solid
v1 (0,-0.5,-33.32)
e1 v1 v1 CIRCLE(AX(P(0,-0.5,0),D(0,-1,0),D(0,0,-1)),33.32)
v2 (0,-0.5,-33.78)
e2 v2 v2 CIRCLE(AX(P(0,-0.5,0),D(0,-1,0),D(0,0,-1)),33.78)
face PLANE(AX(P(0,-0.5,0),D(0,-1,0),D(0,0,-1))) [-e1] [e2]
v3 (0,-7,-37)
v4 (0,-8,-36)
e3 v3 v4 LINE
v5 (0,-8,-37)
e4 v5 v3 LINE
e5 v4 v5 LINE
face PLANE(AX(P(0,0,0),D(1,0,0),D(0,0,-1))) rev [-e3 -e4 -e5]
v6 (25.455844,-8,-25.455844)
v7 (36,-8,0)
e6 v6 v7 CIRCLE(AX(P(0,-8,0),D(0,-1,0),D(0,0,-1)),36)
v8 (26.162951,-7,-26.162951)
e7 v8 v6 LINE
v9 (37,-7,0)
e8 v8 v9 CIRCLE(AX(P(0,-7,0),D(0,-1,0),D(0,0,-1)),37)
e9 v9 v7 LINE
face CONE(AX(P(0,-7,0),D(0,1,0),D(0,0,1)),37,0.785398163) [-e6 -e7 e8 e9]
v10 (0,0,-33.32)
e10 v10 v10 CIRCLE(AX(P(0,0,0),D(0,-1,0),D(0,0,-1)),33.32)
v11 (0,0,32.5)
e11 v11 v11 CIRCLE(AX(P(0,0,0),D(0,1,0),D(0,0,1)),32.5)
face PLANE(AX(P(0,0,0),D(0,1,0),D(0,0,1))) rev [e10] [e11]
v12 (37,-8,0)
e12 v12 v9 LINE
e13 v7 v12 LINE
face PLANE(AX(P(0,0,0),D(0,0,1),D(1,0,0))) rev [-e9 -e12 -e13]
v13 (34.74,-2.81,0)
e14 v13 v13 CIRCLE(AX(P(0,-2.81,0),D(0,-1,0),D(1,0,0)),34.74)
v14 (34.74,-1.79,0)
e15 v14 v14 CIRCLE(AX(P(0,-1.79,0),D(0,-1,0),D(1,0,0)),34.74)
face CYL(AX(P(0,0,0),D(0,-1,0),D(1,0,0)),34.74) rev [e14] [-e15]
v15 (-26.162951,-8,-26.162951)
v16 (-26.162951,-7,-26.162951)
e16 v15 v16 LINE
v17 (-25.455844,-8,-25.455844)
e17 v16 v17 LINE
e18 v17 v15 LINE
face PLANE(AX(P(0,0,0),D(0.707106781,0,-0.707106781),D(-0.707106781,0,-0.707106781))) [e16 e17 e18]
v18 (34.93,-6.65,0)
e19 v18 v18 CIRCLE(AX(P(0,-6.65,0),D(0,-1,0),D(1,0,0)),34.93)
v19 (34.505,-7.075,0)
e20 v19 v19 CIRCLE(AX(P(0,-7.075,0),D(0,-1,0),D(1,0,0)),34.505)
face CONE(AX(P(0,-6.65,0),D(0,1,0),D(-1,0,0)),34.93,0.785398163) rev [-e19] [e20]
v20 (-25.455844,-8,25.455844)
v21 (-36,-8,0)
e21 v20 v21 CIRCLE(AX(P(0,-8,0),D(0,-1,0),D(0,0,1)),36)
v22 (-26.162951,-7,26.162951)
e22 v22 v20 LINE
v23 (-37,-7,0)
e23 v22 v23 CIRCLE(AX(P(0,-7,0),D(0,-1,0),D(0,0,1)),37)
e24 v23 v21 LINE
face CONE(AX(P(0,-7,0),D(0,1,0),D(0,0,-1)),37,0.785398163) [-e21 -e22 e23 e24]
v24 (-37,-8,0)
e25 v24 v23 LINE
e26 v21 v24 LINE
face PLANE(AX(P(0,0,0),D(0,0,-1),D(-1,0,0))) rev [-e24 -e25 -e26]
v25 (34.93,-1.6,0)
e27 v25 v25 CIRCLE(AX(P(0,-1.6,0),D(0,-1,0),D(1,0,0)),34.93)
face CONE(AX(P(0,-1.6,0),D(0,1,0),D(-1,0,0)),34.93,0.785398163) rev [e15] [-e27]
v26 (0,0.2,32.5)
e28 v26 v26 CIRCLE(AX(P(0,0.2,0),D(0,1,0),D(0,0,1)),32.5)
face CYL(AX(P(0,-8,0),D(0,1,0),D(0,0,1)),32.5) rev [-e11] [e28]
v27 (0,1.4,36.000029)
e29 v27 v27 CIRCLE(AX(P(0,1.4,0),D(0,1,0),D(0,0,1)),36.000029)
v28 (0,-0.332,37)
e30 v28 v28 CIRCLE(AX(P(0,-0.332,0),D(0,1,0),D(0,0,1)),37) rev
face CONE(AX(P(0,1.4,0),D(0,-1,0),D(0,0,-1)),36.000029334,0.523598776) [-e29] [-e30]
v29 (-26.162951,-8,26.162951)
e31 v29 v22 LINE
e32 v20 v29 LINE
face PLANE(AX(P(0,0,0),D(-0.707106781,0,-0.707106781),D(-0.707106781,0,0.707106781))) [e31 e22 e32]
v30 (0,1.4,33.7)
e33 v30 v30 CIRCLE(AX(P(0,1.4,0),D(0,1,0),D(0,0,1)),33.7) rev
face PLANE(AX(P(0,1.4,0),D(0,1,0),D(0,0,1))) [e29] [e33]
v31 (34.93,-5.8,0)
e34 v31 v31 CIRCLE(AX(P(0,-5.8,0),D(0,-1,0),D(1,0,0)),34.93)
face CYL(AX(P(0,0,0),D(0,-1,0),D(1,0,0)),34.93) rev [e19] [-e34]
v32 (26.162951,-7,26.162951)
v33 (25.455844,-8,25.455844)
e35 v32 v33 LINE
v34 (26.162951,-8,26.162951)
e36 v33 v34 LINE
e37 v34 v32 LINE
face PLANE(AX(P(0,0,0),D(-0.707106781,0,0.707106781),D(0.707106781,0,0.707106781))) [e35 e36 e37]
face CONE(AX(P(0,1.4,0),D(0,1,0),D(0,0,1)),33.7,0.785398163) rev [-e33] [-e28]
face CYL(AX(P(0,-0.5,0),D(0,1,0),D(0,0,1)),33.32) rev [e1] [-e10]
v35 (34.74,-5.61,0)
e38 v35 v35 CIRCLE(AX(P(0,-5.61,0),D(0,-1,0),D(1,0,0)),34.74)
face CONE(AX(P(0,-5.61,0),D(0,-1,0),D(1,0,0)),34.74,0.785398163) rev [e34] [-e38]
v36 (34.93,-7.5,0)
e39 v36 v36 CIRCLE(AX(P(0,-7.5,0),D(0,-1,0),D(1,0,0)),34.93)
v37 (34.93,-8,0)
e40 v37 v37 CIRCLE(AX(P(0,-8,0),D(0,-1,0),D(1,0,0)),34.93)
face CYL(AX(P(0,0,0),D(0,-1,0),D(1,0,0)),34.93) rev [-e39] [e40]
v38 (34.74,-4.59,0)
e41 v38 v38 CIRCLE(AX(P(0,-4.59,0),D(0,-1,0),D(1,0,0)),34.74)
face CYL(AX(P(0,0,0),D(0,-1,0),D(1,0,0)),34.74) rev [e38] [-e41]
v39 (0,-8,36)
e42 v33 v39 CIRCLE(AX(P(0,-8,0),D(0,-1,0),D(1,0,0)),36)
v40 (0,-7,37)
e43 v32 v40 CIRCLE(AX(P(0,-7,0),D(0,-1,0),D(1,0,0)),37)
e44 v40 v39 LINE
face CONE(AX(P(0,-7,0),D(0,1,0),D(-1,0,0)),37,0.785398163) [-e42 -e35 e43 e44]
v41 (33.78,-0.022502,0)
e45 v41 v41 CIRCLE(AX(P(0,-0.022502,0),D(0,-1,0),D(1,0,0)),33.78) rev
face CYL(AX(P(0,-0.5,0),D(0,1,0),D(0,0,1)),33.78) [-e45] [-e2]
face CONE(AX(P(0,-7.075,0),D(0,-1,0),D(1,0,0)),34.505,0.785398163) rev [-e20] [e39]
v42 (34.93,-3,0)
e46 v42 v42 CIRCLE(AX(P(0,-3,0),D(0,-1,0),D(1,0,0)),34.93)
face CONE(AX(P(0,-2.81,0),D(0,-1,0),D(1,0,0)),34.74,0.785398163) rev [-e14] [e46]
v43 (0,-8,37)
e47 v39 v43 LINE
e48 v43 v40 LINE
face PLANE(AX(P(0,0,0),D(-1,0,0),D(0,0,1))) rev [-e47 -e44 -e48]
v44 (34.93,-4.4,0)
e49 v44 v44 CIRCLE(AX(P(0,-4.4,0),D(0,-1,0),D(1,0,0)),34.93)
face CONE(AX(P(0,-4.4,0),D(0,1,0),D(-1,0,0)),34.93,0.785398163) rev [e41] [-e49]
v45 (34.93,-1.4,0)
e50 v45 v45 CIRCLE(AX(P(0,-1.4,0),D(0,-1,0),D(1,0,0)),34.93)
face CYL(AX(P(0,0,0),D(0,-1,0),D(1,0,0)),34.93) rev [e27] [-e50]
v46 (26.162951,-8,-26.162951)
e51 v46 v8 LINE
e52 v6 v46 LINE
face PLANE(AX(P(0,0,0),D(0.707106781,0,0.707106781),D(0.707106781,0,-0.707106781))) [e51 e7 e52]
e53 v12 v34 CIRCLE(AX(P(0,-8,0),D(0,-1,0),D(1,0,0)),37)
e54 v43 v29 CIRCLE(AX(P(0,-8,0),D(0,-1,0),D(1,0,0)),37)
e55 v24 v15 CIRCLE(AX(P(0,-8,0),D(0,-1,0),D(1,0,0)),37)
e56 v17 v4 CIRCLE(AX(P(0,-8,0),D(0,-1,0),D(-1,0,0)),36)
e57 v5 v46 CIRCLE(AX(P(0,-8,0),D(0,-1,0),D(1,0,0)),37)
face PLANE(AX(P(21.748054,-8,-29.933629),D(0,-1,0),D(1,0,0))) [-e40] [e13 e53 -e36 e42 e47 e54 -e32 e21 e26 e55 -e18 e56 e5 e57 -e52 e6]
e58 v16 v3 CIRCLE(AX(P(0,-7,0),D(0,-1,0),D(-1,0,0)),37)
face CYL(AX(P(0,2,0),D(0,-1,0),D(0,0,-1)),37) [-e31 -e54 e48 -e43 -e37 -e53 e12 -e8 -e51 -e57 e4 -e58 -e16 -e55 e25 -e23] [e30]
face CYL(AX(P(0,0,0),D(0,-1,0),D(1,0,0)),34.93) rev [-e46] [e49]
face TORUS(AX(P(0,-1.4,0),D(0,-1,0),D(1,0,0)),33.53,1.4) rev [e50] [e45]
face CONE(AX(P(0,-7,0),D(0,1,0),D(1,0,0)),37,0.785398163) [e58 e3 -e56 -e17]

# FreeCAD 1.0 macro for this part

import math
import FreeCAD as App
import Part
import Sketcher

V = App.Vector
Q = App.Units.Quantity


def edges_at(feature, points):
    """Names of the edges that pass closest to the given points."""
    edges = feature.Shape.Edges
    near = lambda p: min(range(len(edges)), key=lambda i: edges[i].distToShape(Part.Vertex(*p))[0])
    return sorted({f"Edge{near(p) + 1}" for p in points})

doc = App.newDocument("Part")
body = doc.addObject("PartDesign::Body", "Body")

sketch1 = body.newObject("Sketcher::SketchObject", "Sketch")
sketch1.AttachmentSupport = (doc.getObject("XZ_Plane"), [""])
sketch1.MapMode = "FlatFace"
sketch1.addGeometry(Part.Circle(V(0, 0, 0), V(0, 0, 1), 37), False)
sketch1.addConstraint([
    Sketcher.Constraint("Coincident", 0, 3, -1, 1),
    Sketcher.Constraint("Diameter", 0, Q("74 mm")),
])
pad1 = body.newObject("PartDesign::Pad", "Pad")
pad1.Profile = sketch1
pad1.Length = 2
pad1.Reversed = True

sketch2 = body.newObject("Sketcher::SketchObject", "Sketch001")
sketch2.Placement = App.Placement(V(0, 0, 0), App.Rotation(V(0.587785252, 0, -0.809016994), V(0, 0.999999999, 0), V(0.809016994, 0, 0.587785252), "ZXY"))
sketch2.addGeometry([
    Part.LineSegment(V(34.93, -7.5, 0), V(34.93, -8, 0)),
    Part.LineSegment(V(34.93, -8, 0), V(37, -8, 0)),
    Part.LineSegment(V(37, -8, 0), V(37, 0, 0)),
    Part.LineSegment(V(37, 0, 0), V(33.53, 0, 0)),
    Part.ArcOfCircle(Part.Circle(V(33.53, -1.4, 0), V(0, 0, 1), 1.4), math.radians(0), math.radians(90)),
    Part.LineSegment(V(34.93, -1.4, 0), V(34.93, -1.6, 0)),
    Part.LineSegment(V(34.93, -1.6, 0), V(34.74, -1.79, 0)),
    Part.LineSegment(V(34.74, -1.79, 0), V(34.74, -2.81, 0)),
    Part.LineSegment(V(34.74, -2.81, 0), V(34.93, -3, 0)),
    Part.LineSegment(V(34.93, -3, 0), V(34.93, -4.4, 0)),
    Part.LineSegment(V(34.93, -4.4, 0), V(34.74, -4.59, 0)),
    Part.LineSegment(V(34.74, -4.59, 0), V(34.74, -5.61, 0)),
    Part.LineSegment(V(34.74, -5.61, 0), V(34.93, -5.8, 0)),
    Part.LineSegment(V(34.93, -5.8, 0), V(34.93, -6.65, 0)),
    Part.LineSegment(V(34.93, -6.65, 0), V(34.5, -7.07, 0)),
    Part.LineSegment(V(34.5, -7.07, 0), V(34.93, -7.5, 0)),
], False)
sketch2.addConstraint([
    Sketcher.Constraint("Coincident", 0, 2, 1, 1),
    Sketcher.Constraint("Coincident", 1, 2, 2, 1),
    Sketcher.Constraint("Coincident", 2, 2, 3, 1),
    Sketcher.Constraint("Tangent", 3, 2, 4, 2),
    Sketcher.Constraint("Tangent", 4, 1, 5, 1),
    Sketcher.Constraint("Coincident", 5, 2, 6, 1),
    Sketcher.Constraint("Coincident", 6, 2, 7, 1),
    Sketcher.Constraint("Coincident", 7, 2, 8, 1),
    Sketcher.Constraint("Coincident", 8, 2, 9, 1),
    Sketcher.Constraint("Coincident", 9, 2, 10, 1),
    Sketcher.Constraint("Coincident", 10, 2, 11, 1),
    Sketcher.Constraint("Coincident", 11, 2, 12, 1),
    Sketcher.Constraint("Coincident", 12, 2, 13, 1),
    Sketcher.Constraint("Coincident", 13, 2, 14, 1),
    Sketcher.Constraint("Coincident", 14, 2, 15, 1),
    Sketcher.Constraint("Coincident", 15, 2, 0, 1),
    Sketcher.Constraint("Vertical", 0),
    Sketcher.Constraint("Horizontal", 1),
    Sketcher.Constraint("Vertical", 2),
    Sketcher.Constraint("Horizontal", 3),
    Sketcher.Constraint("Vertical", 5),
    Sketcher.Constraint("Vertical", 7),
    Sketcher.Constraint("Vertical", 9),
    Sketcher.Constraint("Vertical", 11),
    Sketcher.Constraint("Vertical", 13),
    Sketcher.Constraint("PointOnObject", 2, 2, -1),
    Sketcher.Constraint("Perpendicular", 6, 8),
    Sketcher.Constraint("Perpendicular", 8, 10),
    Sketcher.Constraint("Perpendicular", 10, 12),
    Sketcher.Constraint("Perpendicular", 12, 14),
    Sketcher.Constraint("Perpendicular", 14, 15),
    Sketcher.Constraint("Vertical", 0, 2, 4, 1),
    Sketcher.Constraint("Vertical", 5, 2, 8, 2),
    Sketcher.Constraint("Vertical", 7, 2, 10, 2),
    Sketcher.Constraint("Vertical", 9, 2, 12, 2),
    Sketcher.Constraint("Equal", 7, 11),
    Sketcher.Constraint("Equal", 6, 8),
    Sketcher.Constraint("Radius", 4, Q("1.4 mm")),
    Sketcher.Constraint("DistanceY", 2, 1, 2, 2, Q("8 mm")),
    Sketcher.Constraint("DistanceY", 0, 2, 0, 1, Q("0.5 mm")),
    Sketcher.Constraint("DistanceY", 5, 2, 5, 1, Q("0.2 mm")),
    Sketcher.Constraint("DistanceY", 9, 2, 9, 1, Q("1.4 mm")),
    Sketcher.Constraint("DistanceX", -1, 1, 1, 2, Q("37 mm")),
    Sketcher.Constraint("DistanceY", 8, 2, -1, 1, Q("3 mm")),
    Sketcher.Constraint("DistanceX", 1, 1, 1, 2, Q("2.07 mm")),
    Sketcher.Constraint("DistanceY", 7, 2, 7, 1, Q("1.02 mm")),
    Sketcher.Constraint("DistanceY", 13, 2, 13, 1, Q("0.85 mm")),
])
revolution = body.newObject("PartDesign::Revolution", "Revolution")
revolution.Profile = sketch2
revolution.ReferenceAxis = (sketch2, ["V_Axis"])
revolution.Angle = 360

sketch3 = body.newObject("Sketcher::SketchObject", "Sketch002")
sketch3.AttachmentSupport = (doc.getObject("XZ_Plane"), [""])
sketch3.MapMode = "FlatFace"
sketch3.AttachmentOffset = App.Placement(V(0, 0, -2), App.Rotation())
sketch3.addGeometry(Part.Circle(V(0, 0, 0), V(0, 0, 1), 32), False)
sketch3.addConstraint([
    Sketcher.Constraint("Coincident", 0, 3, -1, 1),
    Sketcher.Constraint("Diameter", 0, Q("65 mm")),
])
pocket1 = body.newObject("PartDesign::Pocket", "Pocket")
pocket1.Profile = sketch3
pocket1.Type = "ThroughAll"
pocket1.Reversed = True

sketch4 = body.newObject("Sketcher::SketchObject", "Sketch003")
sketch4.AttachmentSupport = (doc.getObject("XZ_Plane"), [""])
sketch4.MapMode = "FlatFace"
sketch4.AttachmentOffset = App.Placement(V(0, 0, -1.4), App.Rotation())
sketch4.addGeometry(Part.Circle(V(0, 0, 0), V(0, 0, 1), 37), False)
sketch4.addConstraint([
    Sketcher.Constraint("Coincident", 0, 3, -1, 1),
    Sketcher.Constraint("Diameter", 0, Q("74 mm")),
])
pocket2 = body.newObject("PartDesign::Pocket", "Pocket001")
pocket2.Profile = sketch4
pocket2.Length = 0.6
doc.recompute()

chamfer = body.newObject("PartDesign::Chamfer", "Chamfer")
chamfer.Base = (pocket2, edges_at(pocket2, [(0, 1.4, -32.5)]))
chamfer.Size = 1.2
doc.recompute()

chamfer2 = body.newObject("PartDesign::Chamfer", "Chamfer001")
chamfer2.Base = (chamfer, edges_at(chamfer, [(0, 1.4, -37)]))
chamfer2.ChamferType = "Two distances"
chamfer2.Size = 1.732
chamfer2.Size2 = 0.999971
chamfer2.FlipDirection = True

sketch5 = body.newObject("Sketcher::SketchObject", "Sketch004")
sketch5.AttachmentSupport = (doc.getObject("XY_Plane"), [""])
sketch5.MapMode = "FlatFace"
sketch5.addGeometry([
    Part.LineSegment(V(37, -8, 0), V(37, -7, 0)),
    Part.LineSegment(V(37, -7, 0), V(36, -8, 0)),
    Part.LineSegment(V(36, -8, 0), V(37, -8, 0)),
], False)
sketch5.addConstraint([
    Sketcher.Constraint("Coincident", 0, 2, 1, 1),
    Sketcher.Constraint("Coincident", 1, 2, 2, 1),
    Sketcher.Constraint("Coincident", 2, 2, 0, 1),
    Sketcher.Constraint("Vertical", 0),
    Sketcher.Constraint("Horizontal", 2),
    Sketcher.Constraint("Equal", 2, 0),
    Sketcher.Constraint("DistanceX", 2, 1, 2, 2, Q("1 mm")),
    Sketcher.Constraint("DistanceX", -1, 1, 0, 2, Q("37 mm")),
    Sketcher.Constraint("DistanceY", 0, 2, -1, 1, Q("7 mm")),
])
groove = body.newObject("PartDesign::Groove", "Groove")
groove.Profile = sketch5
groove.ReferenceAxis = (sketch5, ["V_Axis"])
groove.Angle = 45
doc.recompute()

polarpattern = body.newObject("PartDesign::PolarPattern", "PolarPattern")
polarpattern.Originals = [groove]
polarpattern.Axis = (doc.getObject("Y_Axis"), [""])
polarpattern.Angle = 360
polarpattern.Occurrences = 4
body.Tip = polarpattern

sketch6 = body.newObject("Sketcher::SketchObject", "Sketch005")
sketch6.AttachmentSupport = (doc.getObject("XZ_Plane"), [""])
sketch6.MapMode = "FlatFace"
sketch6.addGeometry([
    Part.Circle(V(0, 0, 0), V(0, 0, 1), 34),
    Part.Circle(V(0, 0, 0), V(0, 0, 1), 33),
], False)
sketch6.addConstraint([
    Sketcher.Constraint("Coincident", 0, 3, -1, 1),
    Sketcher.Constraint("Coincident", 1, 3, -1, 1),
    Sketcher.Constraint("Diameter", 0, Q("67.56 mm")),
    Sketcher.Constraint("Diameter", 1, Q("66.64 mm")),
])
pad2 = body.newObject("PartDesign::Pad", "Pad001")
pad2.Profile = sketch6
pad2.Length = 0.5

doc.recompute()
